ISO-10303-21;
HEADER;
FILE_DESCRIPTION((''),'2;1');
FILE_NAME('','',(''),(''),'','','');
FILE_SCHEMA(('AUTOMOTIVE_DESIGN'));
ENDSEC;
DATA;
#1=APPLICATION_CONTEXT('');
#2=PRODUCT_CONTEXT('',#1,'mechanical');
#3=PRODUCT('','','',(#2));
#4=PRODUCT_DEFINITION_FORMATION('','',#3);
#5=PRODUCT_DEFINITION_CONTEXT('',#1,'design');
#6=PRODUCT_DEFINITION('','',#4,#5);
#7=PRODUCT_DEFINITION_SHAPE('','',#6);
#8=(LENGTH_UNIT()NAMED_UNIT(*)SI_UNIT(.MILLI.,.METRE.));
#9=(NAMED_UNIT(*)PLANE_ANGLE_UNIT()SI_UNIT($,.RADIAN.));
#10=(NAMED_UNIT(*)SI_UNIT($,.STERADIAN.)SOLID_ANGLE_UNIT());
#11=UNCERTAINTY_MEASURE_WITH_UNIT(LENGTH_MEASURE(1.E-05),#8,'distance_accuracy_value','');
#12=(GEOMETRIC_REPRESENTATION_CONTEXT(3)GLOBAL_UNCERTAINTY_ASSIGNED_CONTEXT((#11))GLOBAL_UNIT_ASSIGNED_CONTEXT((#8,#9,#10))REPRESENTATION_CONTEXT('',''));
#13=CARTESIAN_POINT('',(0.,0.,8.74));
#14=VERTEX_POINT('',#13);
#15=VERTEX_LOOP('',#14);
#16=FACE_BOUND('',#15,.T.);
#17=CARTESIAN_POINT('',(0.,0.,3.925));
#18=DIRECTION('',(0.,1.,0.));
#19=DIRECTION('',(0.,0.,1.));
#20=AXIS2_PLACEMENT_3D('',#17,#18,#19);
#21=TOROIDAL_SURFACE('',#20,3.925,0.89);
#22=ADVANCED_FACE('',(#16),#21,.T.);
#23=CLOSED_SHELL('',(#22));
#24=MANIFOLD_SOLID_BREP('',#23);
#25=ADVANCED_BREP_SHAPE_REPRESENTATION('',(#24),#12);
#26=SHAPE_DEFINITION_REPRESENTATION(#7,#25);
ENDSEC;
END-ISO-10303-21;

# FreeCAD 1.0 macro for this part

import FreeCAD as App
import Part
import Sketcher
from FreeCAD import Vector

doc = App.newDocument("Part")
body = doc.addObject("PartDesign::Body", "Body")

sketch1 = body.newObject("Sketcher::SketchObject", "Sketch")
sketch1.AttachmentSupport = (doc.getObject("YZ_Plane"), [""])
sketch1.MapMode = "FlatFace"
sketch1.addGeometry(Part.Circle(Vector(0, 0, 0), Vector(0, 0, 1), 0.9), False)
sketch1.addGeometry(Part.LineSegment(Vector(0, 3.9, 0), Vector(-10, 3.9, 0)), True)
sketch1.addConstraint([
    Sketcher.Constraint("Horizontal", 1),
    Sketcher.Constraint("Coincident", 0, 3, -1, 1),
    Sketcher.Constraint("PointOnObject", 1, 1, -2),
    Sketcher.Constraint("Diameter", 0, 1.78),
    Sketcher.Constraint("DistanceX", 1, 2, 1, 1, 10.0),
    Sketcher.Constraint("DistanceY", -1, 1, 1, 1, 3.925),
])
revolution = body.newObject("PartDesign::Revolution", "Revolution")
revolution.Profile = sketch1
revolution.ReferenceAxis = (sketch1, ["Axis0"])
revolution.Angle = 360

doc.recompute()
